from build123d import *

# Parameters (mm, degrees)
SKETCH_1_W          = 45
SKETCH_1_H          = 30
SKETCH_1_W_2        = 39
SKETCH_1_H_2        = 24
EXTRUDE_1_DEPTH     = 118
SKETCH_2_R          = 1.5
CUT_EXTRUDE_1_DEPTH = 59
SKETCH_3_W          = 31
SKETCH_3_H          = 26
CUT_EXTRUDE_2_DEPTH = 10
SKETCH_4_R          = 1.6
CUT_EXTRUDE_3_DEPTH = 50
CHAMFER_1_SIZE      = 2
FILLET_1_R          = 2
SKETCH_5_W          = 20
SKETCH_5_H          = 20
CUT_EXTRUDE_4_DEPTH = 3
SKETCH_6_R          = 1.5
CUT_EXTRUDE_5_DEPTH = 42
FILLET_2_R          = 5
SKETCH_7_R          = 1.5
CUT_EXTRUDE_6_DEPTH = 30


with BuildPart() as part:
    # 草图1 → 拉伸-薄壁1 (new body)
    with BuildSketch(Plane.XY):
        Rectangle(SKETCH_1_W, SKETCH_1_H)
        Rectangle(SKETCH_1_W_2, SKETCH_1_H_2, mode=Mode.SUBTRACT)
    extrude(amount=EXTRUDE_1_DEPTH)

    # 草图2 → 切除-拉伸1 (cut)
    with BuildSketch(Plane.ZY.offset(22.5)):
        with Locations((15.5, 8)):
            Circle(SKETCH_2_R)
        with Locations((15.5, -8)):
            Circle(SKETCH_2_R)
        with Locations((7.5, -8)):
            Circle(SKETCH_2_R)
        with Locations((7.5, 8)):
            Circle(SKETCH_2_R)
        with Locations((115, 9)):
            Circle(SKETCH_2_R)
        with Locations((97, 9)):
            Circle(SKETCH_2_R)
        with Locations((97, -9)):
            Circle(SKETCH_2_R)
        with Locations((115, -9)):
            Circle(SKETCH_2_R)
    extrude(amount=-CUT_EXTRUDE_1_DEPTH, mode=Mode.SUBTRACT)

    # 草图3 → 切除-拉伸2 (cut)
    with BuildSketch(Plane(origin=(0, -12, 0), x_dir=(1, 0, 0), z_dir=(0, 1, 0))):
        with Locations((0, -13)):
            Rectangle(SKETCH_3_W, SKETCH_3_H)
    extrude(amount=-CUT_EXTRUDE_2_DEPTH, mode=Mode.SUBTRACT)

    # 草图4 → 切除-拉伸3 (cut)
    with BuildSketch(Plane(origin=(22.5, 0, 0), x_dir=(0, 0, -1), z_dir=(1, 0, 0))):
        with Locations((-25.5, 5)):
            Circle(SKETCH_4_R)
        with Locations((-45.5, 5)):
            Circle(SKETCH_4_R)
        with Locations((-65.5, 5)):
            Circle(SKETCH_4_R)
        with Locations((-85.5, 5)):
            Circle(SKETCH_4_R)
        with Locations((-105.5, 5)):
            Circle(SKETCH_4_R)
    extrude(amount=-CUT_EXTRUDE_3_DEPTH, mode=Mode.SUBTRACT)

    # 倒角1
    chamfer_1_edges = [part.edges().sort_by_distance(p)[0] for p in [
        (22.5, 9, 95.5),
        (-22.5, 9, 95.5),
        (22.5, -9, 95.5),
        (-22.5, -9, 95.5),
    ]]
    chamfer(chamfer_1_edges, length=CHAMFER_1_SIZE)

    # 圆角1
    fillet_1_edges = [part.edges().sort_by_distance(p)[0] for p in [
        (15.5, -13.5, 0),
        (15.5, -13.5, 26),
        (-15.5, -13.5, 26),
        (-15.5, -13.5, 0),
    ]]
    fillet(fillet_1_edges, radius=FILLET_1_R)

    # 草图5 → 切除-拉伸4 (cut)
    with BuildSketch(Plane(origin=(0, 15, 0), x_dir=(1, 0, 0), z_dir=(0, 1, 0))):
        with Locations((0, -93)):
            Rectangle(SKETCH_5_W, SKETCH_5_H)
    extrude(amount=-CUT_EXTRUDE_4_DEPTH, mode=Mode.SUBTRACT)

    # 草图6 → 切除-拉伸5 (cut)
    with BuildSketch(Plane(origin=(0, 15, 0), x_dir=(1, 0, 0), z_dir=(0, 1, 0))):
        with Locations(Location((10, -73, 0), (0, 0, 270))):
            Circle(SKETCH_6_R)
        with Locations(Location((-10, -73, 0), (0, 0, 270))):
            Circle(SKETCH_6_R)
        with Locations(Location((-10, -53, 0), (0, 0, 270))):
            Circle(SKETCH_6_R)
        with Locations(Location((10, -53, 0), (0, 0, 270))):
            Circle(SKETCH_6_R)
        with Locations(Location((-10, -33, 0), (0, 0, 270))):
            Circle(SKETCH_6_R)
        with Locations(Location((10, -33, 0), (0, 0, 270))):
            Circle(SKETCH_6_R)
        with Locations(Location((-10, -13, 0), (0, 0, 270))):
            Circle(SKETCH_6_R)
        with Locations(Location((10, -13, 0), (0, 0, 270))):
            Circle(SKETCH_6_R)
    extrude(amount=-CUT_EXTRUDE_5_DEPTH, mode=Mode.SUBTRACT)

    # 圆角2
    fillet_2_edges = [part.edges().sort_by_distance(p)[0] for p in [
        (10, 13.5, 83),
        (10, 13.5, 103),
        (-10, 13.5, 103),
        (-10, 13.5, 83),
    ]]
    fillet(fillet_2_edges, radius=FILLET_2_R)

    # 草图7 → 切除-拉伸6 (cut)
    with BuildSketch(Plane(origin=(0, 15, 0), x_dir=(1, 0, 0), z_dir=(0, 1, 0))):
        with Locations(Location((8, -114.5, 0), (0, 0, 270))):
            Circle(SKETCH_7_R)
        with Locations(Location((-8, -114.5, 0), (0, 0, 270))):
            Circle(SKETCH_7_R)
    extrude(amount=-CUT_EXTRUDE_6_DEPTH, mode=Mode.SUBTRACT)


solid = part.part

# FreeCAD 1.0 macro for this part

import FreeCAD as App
import Part
import Sketcher
from FreeCAD import Vector


def edges_at(feature, points):
    """Names of the edges that pass closest to the given points."""
    edges = feature.Shape.Edges
    near = lambda p: min(range(len(edges)), key=lambda i: edges[i].distToShape(Part.Vertex(*p))[0])
    return sorted({f"Edge{near(p) + 1}" for p in points})

doc = App.newDocument("Part")
body = doc.addObject("PartDesign::Body", "Body")

sketch1 = body.newObject("Sketcher::SketchObject", "Sketch")
sketch1.AttachmentSupport = (doc.getObject("XY_Plane"), [""])
sketch1.MapMode = "FlatFace"
sketch1.addGeometry(Part.LineSegment(Vector(-22, 15, 0), Vector(-22, -15, 0)), False)
sketch1.addGeometry(Part.LineSegment(Vector(-22, -15, 0), Vector(22, -15, 0)), False)
sketch1.addGeometry(Part.LineSegment(Vector(22, -15, 0), Vector(22, 15, 0)), False)
sketch1.addGeometry(Part.LineSegment(Vector(22, 15, 0), Vector(-22, 15, 0)), False)
sketch1.addGeometry(Part.LineSegment(Vector(20, -12, 0), Vector(-20, -12, 0)), False)
sketch1.addGeometry(Part.LineSegment(Vector(-20, -12, 0), Vector(-20, 12, 0)), False)
sketch1.addGeometry(Part.LineSegment(Vector(-20, 12, 0), Vector(20, 12, 0)), False)
sketch1.addGeometry(Part.LineSegment(Vector(20, 12, 0), Vector(20, -12, 0)), False)
sketch1.addConstraint(Sketcher.Constraint("Coincident", 0, 2, 1, 1))
sketch1.addConstraint(Sketcher.Constraint("Coincident", 1, 2, 2, 1))
sketch1.addConstraint(Sketcher.Constraint("Coincident", 2, 2, 3, 1))
sketch1.addConstraint(Sketcher.Constraint("Coincident", 3, 2, 0, 1))
sketch1.addConstraint(Sketcher.Constraint("Coincident", 4, 2, 5, 1))
sketch1.addConstraint(Sketcher.Constraint("Coincident", 5, 2, 6, 1))
sketch1.addConstraint(Sketcher.Constraint("Coincident", 6, 2, 7, 1))
sketch1.addConstraint(Sketcher.Constraint("Coincident", 7, 2, 4, 1))
sketch1.addConstraint(Sketcher.Constraint("Vertical", 0))
sketch1.addConstraint(Sketcher.Constraint("Horizontal", 1))
sketch1.addConstraint(Sketcher.Constraint("Vertical", 2))
sketch1.addConstraint(Sketcher.Constraint("Horizontal", 3))
sketch1.addConstraint(Sketcher.Constraint("Horizontal", 4))
sketch1.addConstraint(Sketcher.Constraint("Vertical", 5))
sketch1.addConstraint(Sketcher.Constraint("Horizontal", 6))
sketch1.addConstraint(Sketcher.Constraint("Vertical", 7))
sketch1.addConstraint(Sketcher.Constraint("Symmetric", 0, 2, 2, 2, -1, 1))
sketch1.addConstraint(Sketcher.Constraint("Symmetric", 4, 2, 6, 2, -1, 1))
sketch1.addConstraint(Sketcher.Constraint("DistanceX", 1, 1, 1, 2, 45.0))
sketch1.addConstraint(Sketcher.Constraint("DistanceX", 4, 2, 4, 1, 39.0))
sketch1.addConstraint(Sketcher.Constraint("DistanceY", 0, 2, 0, 1, 30.0))
sketch1.addConstraint(Sketcher.Constraint("DistanceY", 5, 1, 5, 2, 24.0))
pad1 = body.newObject("PartDesign::Pad", "Pad")
pad1.Profile = sketch1
pad1.Length = 118

sketch2 = body.newObject("Sketcher::SketchObject", "Sketch001")
sketch2.AttachmentSupport = (doc.getObject("YZ_Plane"), [""])
sketch2.MapMode = "FlatFace"
sketch2.AttachmentOffset = App.Placement(Vector(0, 0, -22.5), App.Rotation())
sketch2.addGeometry(Part.Circle(Vector(8, 15.5, 0), Vector(0, 0, 1), 1.5), False)
sketch2.addGeometry(Part.Circle(Vector(-8, 15.5, 0), Vector(0, 0, 1), 1.5), False)
sketch2.addGeometry(Part.Circle(Vector(-8, 7.5, 0), Vector(0, 0, 1), 1.5), False)
sketch2.addGeometry(Part.Circle(Vector(8, 7.5, 0), Vector(0, 0, 1), 1.5), False)
sketch2.addGeometry(Part.Circle(Vector(9, 115, 0), Vector(0, 0, 1), 1.5), False)
sketch2.addGeometry(Part.Circle(Vector(9, 97, 0), Vector(0, 0, 1), 1.5), False)
sketch2.addGeometry(Part.Circle(Vector(-9, 97, 0), Vector(0, 0, 1), 1.5), False)
sketch2.addGeometry(Part.Circle(Vector(-9, 115, 0), Vector(0, 0, 1), 1.5), False)
sketch2.addConstraint(Sketcher.Constraint("Equal", 0, 1))
sketch2.addConstraint(Sketcher.Constraint("Equal", 1, 2))
sketch2.addConstraint(Sketcher.Constraint("Equal", 2, 3))
sketch2.addConstraint(Sketcher.Constraint("Equal", 3, 4))
sketch2.addConstraint(Sketcher.Constraint("Equal", 4, 5))
sketch2.addConstraint(Sketcher.Constraint("Equal", 5, 6))
sketch2.addConstraint(Sketcher.Constraint("Equal", 6, 7))
sketch2.addConstraint(Sketcher.Constraint("Symmetric", 0, 3, 1, 3, -2))
sketch2.addConstraint(Sketcher.Constraint("Symmetric", 2, 3, 3, 3, -2))
sketch2.addConstraint(Sketcher.Constraint("Symmetric", 5, 3, 6, 3, -2))
sketch2.addConstraint(Sketcher.Constraint("Symmetric", 4, 3, 7, 3, -2))
sketch2.addConstraint(Sketcher.Constraint("Vertical", 1, 3, 2, 3))
sketch2.addConstraint(Sketcher.Constraint("Vertical", 4, 3, 5, 3))
sketch2.addConstraint(Sketcher.Constraint("Diameter", 0, 3.0))
sketch2.addConstraint(Sketcher.Constraint("DistanceX", -1, 1, 0, 3, 8.0))
sketch2.addConstraint(Sketcher.Constraint("DistanceX", -1, 1, 4, 3, 9.0))
sketch2.addConstraint(Sketcher.Constraint("DistanceY", -1, 1, 4, 3, 115.0))
sketch2.addConstraint(Sketcher.Constraint("DistanceY", -1, 1, 5, 3, 97.0))
sketch2.addConstraint(Sketcher.Constraint("DistanceY", 2, 3, 1, 3, 8.0))
sketch2.addConstraint(Sketcher.Constraint("DistanceY", -1, 1, 0, 3, 15.5))
pocket1 = body.newObject("PartDesign::Pocket", "Pocket")
pocket1.Profile = sketch2
pocket1.Length = 59
pocket1.Reversed = True

sketch3 = body.newObject("Sketcher::SketchObject", "Sketch002")
sketch3.AttachmentSupport = (doc.getObject("XZ_Plane"), [""])
sketch3.MapMode = "FlatFace"
sketch3.AttachmentOffset = App.Placement(Vector(0, 0, 12), App.Rotation())
sketch3.addGeometry(Part.LineSegment(Vector(-16, 0, 0), Vector(-16, 26, 0)), False)
sketch3.addGeometry(Part.LineSegment(Vector(-16, 26, 0), Vector(16, 26, 0)), False)
sketch3.addGeometry(Part.LineSegment(Vector(16, 26, 0), Vector(16, 0, 0)), False)
sketch3.addGeometry(Part.LineSegment(Vector(16, 0, 0), Vector(-16, 0, 0)), False)
sketch3.addConstraint(Sketcher.Constraint("Coincident", 0, 2, 1, 1))
sketch3.addConstraint(Sketcher.Constraint("Coincident", 1, 2, 2, 1))
sketch3.addConstraint(Sketcher.Constraint("Coincident", 2, 2, 3, 1))
sketch3.addConstraint(Sketcher.Constraint("Coincident", 3, 2, 0, 1))
sketch3.addConstraint(Sketcher.Constraint("Vertical", 0))
sketch3.addConstraint(Sketcher.Constraint("Horizontal", 1))
sketch3.addConstraint(Sketcher.Constraint("Vertical", 2))
sketch3.addConstraint(Sketcher.Constraint("Horizontal", 3))
sketch3.addConstraint(Sketcher.Constraint("Symmetric", 2, 2, 3, 2, -1, 1))
sketch3.addConstraint(Sketcher.Constraint("DistanceX", 1, 1, 1, 2, 31.0))
sketch3.addConstraint(Sketcher.Constraint("DistanceY", 0, 1, 0, 2, 26.0))
pocket2 = body.newObject("PartDesign::Pocket", "Pocket001")
pocket2.Profile = sketch3
pocket2.Length = 10
pocket2.Reversed = True

sketch4 = body.newObject("Sketcher::SketchObject", "Sketch003")
sketch4.AttachmentSupport = (doc.getObject("YZ_Plane"), [""])
sketch4.MapMode = "FlatFace"
sketch4.AttachmentOffset = App.Placement(Vector(0, 0, 22.5), App.Rotation())
sketch4.addGeometry(Part.Circle(Vector(5, 25.5, 0), Vector(0, 0, 1), 1.6), False)
sketch4.addGeometry(Part.Circle(Vector(5, 45.5, 0), Vector(0, 0, 1), 1.6), False)
sketch4.addGeometry(Part.Circle(Vector(5, 65.5, 0), Vector(0, 0, 1), 1.6), False)
sketch4.addGeometry(Part.Circle(Vector(5, 85.5, 0), Vector(0, 0, 1), 1.6), False)
sketch4.addGeometry(Part.Circle(Vector(5, 105.5, 0), Vector(0, 0, 1), 1.6), False)
sketch4.addConstraint(Sketcher.Constraint("Equal", 0, 1))
sketch4.addConstraint(Sketcher.Constraint("Equal", 1, 2))
sketch4.addConstraint(Sketcher.Constraint("Equal", 2, 3))
sketch4.addConstraint(Sketcher.Constraint("Equal", 3, 4))
sketch4.addConstraint(Sketcher.Constraint("Vertical", 0, 3, 1, 3))
sketch4.addConstraint(Sketcher.Constraint("Vertical", 1, 3, 2, 3))
sketch4.addConstraint(Sketcher.Constraint("Vertical", 2, 3, 3, 3))
sketch4.addConstraint(Sketcher.Constraint("Vertical", 3, 3, 4, 3))
sketch4.addConstraint(Sketcher.Constraint("Diameter", 0, 3.2))
sketch4.addConstraint(Sketcher.Constraint("DistanceX", -1, 1, 0, 3, 5.0))
sketch4.addConstraint(Sketcher.Constraint("DistanceY", 0, 3, 1, 3, 20.0))
sketch4.addConstraint(Sketcher.Constraint("DistanceY", 1, 3, 2, 3, 20.0))
sketch4.addConstraint(Sketcher.Constraint("DistanceY", 2, 3, 3, 3, 20.0))
sketch4.addConstraint(Sketcher.Constraint("DistanceY", 3, 3, 4, 3, 20.0))
sketch4.addConstraint(Sketcher.Constraint("DistanceY", -1, 1, 0, 3, 25.5))
pocket3 = body.newObject("PartDesign::Pocket", "Pocket002")
pocket3.Profile = sketch4
pocket3.Length = 50
doc.recompute()

chamfer = body.newObject("PartDesign::Chamfer", "Chamfer")
chamfer.Base = (pocket3, edges_at(pocket3, [
    (22.5, 9, 95.5),
    (-22.5, 9, 95.5),
    (22.5, -9, 95.5),
    (-22.5, -9, 95.5),
]))
chamfer.Size = 2
doc.recompute()

fillet = body.newObject("PartDesign::Fillet", "Fillet")
fillet.Base = (chamfer, edges_at(chamfer, [
    (15.5, -13.5, 0),
    (15.5, -13.5, 26),
    (-15.5, -13.5, 26),
    (-15.5, -13.5, 0),
]))
fillet.Radius = 2

sketch5 = body.newObject("Sketcher::SketchObject", "Sketch004")
sketch5.AttachmentSupport = (doc.getObject("XZ_Plane"), [""])
sketch5.MapMode = "FlatFace"
sketch5.AttachmentOffset = App.Placement(Vector(0, 0, -15), App.Rotation())
sketch5.addGeometry(Part.LineSegment(Vector(-10, 83, 0), Vector(-10, 103, 0)), False)
sketch5.addGeometry(Part.LineSegment(Vector(-10, 103, 0), Vector(10, 103, 0)), False)
sketch5.addGeometry(Part.LineSegment(Vector(10, 103, 0), Vector(10, 83, 0)), False)
sketch5.addGeometry(Part.LineSegment(Vector(10, 83, 0), Vector(-10, 83, 0)), False)
sketch5.addConstraint(Sketcher.Constraint("Coincident", 0, 2, 1, 1))
sketch5.addConstraint(Sketcher.Constraint("Coincident", 1, 2, 2, 1))
sketch5.addConstraint(Sketcher.Constraint("Coincident", 2, 2, 3, 1))
sketch5.addConstraint(Sketcher.Constraint("Coincident", 3, 2, 0, 1))
sketch5.addConstraint(Sketcher.Constraint("Vertical", 0))
sketch5.addConstraint(Sketcher.Constraint("Horizontal", 1))
sketch5.addConstraint(Sketcher.Constraint("Vertical", 2))
sketch5.addConstraint(Sketcher.Constraint("Horizontal", 3))
sketch5.addConstraint(Sketcher.Constraint("Equal", 3, 0))
sketch5.addConstraint(Sketcher.Constraint("DistanceX", 1, 1, 1, 2, 20.0))
sketch5.addConstraint(Sketcher.Constraint("DistanceX", 0, 2, -1, 1, 10.0))
sketch5.addConstraint(Sketcher.Constraint("DistanceY", -1, 1, 0, 2, 103.0))
pocket4 = body.newObject("PartDesign::Pocket", "Pocket003")
pocket4.Profile = sketch5
pocket4.Length = 3
pocket4.Reversed = True

sketch6 = body.newObject("Sketcher::SketchObject", "Sketch005")
sketch6.AttachmentSupport = (doc.getObject("XZ_Plane"), [""])
sketch6.MapMode = "FlatFace"
sketch6.AttachmentOffset = App.Placement(Vector(0, 0, -15), App.Rotation())
sketch6.addGeometry(Part.Circle(Vector(10, 73, 0), Vector(0, 0, 1), 1.5), False)
sketch6.addGeometry(Part.Circle(Vector(-10, 73, 0), Vector(0, 0, 1), 1.5), False)
sketch6.addGeometry(Part.Circle(Vector(-10, 53, 0), Vector(0, 0, 1), 1.5), False)
sketch6.addGeometry(Part.Circle(Vector(10, 53, 0), Vector(0, 0, 1), 1.5), False)
sketch6.addGeometry(Part.Circle(Vector(-10, 33, 0), Vector(0, 0, 1), 1.5), False)
sketch6.addGeometry(Part.Circle(Vector(10, 33, 0), Vector(0, 0, 1), 1.5), False)
sketch6.addGeometry(Part.Circle(Vector(-10, 13, 0), Vector(0, 0, 1), 1.5), False)
sketch6.addGeometry(Part.Circle(Vector(10, 13, 0), Vector(0, 0, 1), 1.5), False)
sketch6.addConstraint(Sketcher.Constraint("Equal", 0, 1))
sketch6.addConstraint(Sketcher.Constraint("Equal", 1, 2))
sketch6.addConstraint(Sketcher.Constraint("Equal", 2, 3))
sketch6.addConstraint(Sketcher.Constraint("Equal", 3, 4))
sketch6.addConstraint(Sketcher.Constraint("Equal", 4, 5))
sketch6.addConstraint(Sketcher.Constraint("Equal", 5, 6))
sketch6.addConstraint(Sketcher.Constraint("Equal", 6, 7))
sketch6.addConstraint(Sketcher.Constraint("Symmetric", 0, 3, 1, 3, -2))
sketch6.addConstraint(Sketcher.Constraint("Symmetric", 2, 3, 3, 3, -2))
sketch6.addConstraint(Sketcher.Constraint("Symmetric", 4, 3, 5, 3, -2))
sketch6.addConstraint(Sketcher.Constraint("Symmetric", 6, 3, 7, 3, -2))
sketch6.addConstraint(Sketcher.Constraint("Vertical", 1, 3, 2, 3))
sketch6.addConstraint(Sketcher.Constraint("Vertical", 2, 3, 4, 3))
sketch6.addConstraint(Sketcher.Constraint("Vertical", 4, 3, 6, 3))
sketch6.addConstraint(Sketcher.Constraint("Diameter", 0, 3.0))
sketch6.addConstraint(Sketcher.Constraint("DistanceX", -1, 1, 0, 3, 10.0))
sketch6.addConstraint(Sketcher.Constraint("DistanceY", -1, 1, 0, 3, 73.0))
sketch6.addConstraint(Sketcher.Constraint("DistanceY", -1, 1, 2, 3, 53.0))
sketch6.addConstraint(Sketcher.Constraint("DistanceY", -1, 1, 4, 3, 33.0))
sketch6.addConstraint(Sketcher.Constraint("DistanceY", -1, 1, 6, 3, 13.0))
pocket5 = body.newObject("PartDesign::Pocket", "Pocket004")
pocket5.Profile = sketch6
pocket5.Length = 42
pocket5.Reversed = True
doc.recompute()

fillet2 = body.newObject("PartDesign::Fillet", "Fillet001")
fillet2.Base = (pocket5, edges_at(pocket5, [
    (10, 13.5, 83),
    (10, 13.5, 103),
    (-10, 13.5, 103),
    (-10, 13.5, 83),
]))
fillet2.Radius = 5

sketch7 = body.newObject("Sketcher::SketchObject", "Sketch006")
sketch7.AttachmentSupport = (doc.getObject("XZ_Plane"), [""])
sketch7.MapMode = "FlatFace"
sketch7.AttachmentOffset = App.Placement(Vector(0, 0, -15), App.Rotation())
sketch7.addGeometry(Part.Circle(Vector(8, 114.5, 0), Vector(0, 0, 1), 1.5), False)
sketch7.addGeometry(Part.Circle(Vector(-8, 114.5, 0), Vector(0, 0, 1), 1.5), False)
sketch7.addConstraint(Sketcher.Constraint("Equal", 0, 1))
sketch7.addConstraint(Sketcher.Constraint("Symmetric", 0, 3, 1, 3, -2))
sketch7.addConstraint(Sketcher.Constraint("Diameter", 0, 3.0))
sketch7.addConstraint(Sketcher.Constraint("DistanceX", -1, 1, 0, 3, 8.0))
sketch7.addConstraint(Sketcher.Constraint("DistanceY", -1, 1, 0, 3, 114.5))
pocket6 = body.newObject("PartDesign::Pocket", "Pocket005")
pocket6.Profile = sketch7
pocket6.Length = 30
pocket6.Reversed = True

doc.recompute()
